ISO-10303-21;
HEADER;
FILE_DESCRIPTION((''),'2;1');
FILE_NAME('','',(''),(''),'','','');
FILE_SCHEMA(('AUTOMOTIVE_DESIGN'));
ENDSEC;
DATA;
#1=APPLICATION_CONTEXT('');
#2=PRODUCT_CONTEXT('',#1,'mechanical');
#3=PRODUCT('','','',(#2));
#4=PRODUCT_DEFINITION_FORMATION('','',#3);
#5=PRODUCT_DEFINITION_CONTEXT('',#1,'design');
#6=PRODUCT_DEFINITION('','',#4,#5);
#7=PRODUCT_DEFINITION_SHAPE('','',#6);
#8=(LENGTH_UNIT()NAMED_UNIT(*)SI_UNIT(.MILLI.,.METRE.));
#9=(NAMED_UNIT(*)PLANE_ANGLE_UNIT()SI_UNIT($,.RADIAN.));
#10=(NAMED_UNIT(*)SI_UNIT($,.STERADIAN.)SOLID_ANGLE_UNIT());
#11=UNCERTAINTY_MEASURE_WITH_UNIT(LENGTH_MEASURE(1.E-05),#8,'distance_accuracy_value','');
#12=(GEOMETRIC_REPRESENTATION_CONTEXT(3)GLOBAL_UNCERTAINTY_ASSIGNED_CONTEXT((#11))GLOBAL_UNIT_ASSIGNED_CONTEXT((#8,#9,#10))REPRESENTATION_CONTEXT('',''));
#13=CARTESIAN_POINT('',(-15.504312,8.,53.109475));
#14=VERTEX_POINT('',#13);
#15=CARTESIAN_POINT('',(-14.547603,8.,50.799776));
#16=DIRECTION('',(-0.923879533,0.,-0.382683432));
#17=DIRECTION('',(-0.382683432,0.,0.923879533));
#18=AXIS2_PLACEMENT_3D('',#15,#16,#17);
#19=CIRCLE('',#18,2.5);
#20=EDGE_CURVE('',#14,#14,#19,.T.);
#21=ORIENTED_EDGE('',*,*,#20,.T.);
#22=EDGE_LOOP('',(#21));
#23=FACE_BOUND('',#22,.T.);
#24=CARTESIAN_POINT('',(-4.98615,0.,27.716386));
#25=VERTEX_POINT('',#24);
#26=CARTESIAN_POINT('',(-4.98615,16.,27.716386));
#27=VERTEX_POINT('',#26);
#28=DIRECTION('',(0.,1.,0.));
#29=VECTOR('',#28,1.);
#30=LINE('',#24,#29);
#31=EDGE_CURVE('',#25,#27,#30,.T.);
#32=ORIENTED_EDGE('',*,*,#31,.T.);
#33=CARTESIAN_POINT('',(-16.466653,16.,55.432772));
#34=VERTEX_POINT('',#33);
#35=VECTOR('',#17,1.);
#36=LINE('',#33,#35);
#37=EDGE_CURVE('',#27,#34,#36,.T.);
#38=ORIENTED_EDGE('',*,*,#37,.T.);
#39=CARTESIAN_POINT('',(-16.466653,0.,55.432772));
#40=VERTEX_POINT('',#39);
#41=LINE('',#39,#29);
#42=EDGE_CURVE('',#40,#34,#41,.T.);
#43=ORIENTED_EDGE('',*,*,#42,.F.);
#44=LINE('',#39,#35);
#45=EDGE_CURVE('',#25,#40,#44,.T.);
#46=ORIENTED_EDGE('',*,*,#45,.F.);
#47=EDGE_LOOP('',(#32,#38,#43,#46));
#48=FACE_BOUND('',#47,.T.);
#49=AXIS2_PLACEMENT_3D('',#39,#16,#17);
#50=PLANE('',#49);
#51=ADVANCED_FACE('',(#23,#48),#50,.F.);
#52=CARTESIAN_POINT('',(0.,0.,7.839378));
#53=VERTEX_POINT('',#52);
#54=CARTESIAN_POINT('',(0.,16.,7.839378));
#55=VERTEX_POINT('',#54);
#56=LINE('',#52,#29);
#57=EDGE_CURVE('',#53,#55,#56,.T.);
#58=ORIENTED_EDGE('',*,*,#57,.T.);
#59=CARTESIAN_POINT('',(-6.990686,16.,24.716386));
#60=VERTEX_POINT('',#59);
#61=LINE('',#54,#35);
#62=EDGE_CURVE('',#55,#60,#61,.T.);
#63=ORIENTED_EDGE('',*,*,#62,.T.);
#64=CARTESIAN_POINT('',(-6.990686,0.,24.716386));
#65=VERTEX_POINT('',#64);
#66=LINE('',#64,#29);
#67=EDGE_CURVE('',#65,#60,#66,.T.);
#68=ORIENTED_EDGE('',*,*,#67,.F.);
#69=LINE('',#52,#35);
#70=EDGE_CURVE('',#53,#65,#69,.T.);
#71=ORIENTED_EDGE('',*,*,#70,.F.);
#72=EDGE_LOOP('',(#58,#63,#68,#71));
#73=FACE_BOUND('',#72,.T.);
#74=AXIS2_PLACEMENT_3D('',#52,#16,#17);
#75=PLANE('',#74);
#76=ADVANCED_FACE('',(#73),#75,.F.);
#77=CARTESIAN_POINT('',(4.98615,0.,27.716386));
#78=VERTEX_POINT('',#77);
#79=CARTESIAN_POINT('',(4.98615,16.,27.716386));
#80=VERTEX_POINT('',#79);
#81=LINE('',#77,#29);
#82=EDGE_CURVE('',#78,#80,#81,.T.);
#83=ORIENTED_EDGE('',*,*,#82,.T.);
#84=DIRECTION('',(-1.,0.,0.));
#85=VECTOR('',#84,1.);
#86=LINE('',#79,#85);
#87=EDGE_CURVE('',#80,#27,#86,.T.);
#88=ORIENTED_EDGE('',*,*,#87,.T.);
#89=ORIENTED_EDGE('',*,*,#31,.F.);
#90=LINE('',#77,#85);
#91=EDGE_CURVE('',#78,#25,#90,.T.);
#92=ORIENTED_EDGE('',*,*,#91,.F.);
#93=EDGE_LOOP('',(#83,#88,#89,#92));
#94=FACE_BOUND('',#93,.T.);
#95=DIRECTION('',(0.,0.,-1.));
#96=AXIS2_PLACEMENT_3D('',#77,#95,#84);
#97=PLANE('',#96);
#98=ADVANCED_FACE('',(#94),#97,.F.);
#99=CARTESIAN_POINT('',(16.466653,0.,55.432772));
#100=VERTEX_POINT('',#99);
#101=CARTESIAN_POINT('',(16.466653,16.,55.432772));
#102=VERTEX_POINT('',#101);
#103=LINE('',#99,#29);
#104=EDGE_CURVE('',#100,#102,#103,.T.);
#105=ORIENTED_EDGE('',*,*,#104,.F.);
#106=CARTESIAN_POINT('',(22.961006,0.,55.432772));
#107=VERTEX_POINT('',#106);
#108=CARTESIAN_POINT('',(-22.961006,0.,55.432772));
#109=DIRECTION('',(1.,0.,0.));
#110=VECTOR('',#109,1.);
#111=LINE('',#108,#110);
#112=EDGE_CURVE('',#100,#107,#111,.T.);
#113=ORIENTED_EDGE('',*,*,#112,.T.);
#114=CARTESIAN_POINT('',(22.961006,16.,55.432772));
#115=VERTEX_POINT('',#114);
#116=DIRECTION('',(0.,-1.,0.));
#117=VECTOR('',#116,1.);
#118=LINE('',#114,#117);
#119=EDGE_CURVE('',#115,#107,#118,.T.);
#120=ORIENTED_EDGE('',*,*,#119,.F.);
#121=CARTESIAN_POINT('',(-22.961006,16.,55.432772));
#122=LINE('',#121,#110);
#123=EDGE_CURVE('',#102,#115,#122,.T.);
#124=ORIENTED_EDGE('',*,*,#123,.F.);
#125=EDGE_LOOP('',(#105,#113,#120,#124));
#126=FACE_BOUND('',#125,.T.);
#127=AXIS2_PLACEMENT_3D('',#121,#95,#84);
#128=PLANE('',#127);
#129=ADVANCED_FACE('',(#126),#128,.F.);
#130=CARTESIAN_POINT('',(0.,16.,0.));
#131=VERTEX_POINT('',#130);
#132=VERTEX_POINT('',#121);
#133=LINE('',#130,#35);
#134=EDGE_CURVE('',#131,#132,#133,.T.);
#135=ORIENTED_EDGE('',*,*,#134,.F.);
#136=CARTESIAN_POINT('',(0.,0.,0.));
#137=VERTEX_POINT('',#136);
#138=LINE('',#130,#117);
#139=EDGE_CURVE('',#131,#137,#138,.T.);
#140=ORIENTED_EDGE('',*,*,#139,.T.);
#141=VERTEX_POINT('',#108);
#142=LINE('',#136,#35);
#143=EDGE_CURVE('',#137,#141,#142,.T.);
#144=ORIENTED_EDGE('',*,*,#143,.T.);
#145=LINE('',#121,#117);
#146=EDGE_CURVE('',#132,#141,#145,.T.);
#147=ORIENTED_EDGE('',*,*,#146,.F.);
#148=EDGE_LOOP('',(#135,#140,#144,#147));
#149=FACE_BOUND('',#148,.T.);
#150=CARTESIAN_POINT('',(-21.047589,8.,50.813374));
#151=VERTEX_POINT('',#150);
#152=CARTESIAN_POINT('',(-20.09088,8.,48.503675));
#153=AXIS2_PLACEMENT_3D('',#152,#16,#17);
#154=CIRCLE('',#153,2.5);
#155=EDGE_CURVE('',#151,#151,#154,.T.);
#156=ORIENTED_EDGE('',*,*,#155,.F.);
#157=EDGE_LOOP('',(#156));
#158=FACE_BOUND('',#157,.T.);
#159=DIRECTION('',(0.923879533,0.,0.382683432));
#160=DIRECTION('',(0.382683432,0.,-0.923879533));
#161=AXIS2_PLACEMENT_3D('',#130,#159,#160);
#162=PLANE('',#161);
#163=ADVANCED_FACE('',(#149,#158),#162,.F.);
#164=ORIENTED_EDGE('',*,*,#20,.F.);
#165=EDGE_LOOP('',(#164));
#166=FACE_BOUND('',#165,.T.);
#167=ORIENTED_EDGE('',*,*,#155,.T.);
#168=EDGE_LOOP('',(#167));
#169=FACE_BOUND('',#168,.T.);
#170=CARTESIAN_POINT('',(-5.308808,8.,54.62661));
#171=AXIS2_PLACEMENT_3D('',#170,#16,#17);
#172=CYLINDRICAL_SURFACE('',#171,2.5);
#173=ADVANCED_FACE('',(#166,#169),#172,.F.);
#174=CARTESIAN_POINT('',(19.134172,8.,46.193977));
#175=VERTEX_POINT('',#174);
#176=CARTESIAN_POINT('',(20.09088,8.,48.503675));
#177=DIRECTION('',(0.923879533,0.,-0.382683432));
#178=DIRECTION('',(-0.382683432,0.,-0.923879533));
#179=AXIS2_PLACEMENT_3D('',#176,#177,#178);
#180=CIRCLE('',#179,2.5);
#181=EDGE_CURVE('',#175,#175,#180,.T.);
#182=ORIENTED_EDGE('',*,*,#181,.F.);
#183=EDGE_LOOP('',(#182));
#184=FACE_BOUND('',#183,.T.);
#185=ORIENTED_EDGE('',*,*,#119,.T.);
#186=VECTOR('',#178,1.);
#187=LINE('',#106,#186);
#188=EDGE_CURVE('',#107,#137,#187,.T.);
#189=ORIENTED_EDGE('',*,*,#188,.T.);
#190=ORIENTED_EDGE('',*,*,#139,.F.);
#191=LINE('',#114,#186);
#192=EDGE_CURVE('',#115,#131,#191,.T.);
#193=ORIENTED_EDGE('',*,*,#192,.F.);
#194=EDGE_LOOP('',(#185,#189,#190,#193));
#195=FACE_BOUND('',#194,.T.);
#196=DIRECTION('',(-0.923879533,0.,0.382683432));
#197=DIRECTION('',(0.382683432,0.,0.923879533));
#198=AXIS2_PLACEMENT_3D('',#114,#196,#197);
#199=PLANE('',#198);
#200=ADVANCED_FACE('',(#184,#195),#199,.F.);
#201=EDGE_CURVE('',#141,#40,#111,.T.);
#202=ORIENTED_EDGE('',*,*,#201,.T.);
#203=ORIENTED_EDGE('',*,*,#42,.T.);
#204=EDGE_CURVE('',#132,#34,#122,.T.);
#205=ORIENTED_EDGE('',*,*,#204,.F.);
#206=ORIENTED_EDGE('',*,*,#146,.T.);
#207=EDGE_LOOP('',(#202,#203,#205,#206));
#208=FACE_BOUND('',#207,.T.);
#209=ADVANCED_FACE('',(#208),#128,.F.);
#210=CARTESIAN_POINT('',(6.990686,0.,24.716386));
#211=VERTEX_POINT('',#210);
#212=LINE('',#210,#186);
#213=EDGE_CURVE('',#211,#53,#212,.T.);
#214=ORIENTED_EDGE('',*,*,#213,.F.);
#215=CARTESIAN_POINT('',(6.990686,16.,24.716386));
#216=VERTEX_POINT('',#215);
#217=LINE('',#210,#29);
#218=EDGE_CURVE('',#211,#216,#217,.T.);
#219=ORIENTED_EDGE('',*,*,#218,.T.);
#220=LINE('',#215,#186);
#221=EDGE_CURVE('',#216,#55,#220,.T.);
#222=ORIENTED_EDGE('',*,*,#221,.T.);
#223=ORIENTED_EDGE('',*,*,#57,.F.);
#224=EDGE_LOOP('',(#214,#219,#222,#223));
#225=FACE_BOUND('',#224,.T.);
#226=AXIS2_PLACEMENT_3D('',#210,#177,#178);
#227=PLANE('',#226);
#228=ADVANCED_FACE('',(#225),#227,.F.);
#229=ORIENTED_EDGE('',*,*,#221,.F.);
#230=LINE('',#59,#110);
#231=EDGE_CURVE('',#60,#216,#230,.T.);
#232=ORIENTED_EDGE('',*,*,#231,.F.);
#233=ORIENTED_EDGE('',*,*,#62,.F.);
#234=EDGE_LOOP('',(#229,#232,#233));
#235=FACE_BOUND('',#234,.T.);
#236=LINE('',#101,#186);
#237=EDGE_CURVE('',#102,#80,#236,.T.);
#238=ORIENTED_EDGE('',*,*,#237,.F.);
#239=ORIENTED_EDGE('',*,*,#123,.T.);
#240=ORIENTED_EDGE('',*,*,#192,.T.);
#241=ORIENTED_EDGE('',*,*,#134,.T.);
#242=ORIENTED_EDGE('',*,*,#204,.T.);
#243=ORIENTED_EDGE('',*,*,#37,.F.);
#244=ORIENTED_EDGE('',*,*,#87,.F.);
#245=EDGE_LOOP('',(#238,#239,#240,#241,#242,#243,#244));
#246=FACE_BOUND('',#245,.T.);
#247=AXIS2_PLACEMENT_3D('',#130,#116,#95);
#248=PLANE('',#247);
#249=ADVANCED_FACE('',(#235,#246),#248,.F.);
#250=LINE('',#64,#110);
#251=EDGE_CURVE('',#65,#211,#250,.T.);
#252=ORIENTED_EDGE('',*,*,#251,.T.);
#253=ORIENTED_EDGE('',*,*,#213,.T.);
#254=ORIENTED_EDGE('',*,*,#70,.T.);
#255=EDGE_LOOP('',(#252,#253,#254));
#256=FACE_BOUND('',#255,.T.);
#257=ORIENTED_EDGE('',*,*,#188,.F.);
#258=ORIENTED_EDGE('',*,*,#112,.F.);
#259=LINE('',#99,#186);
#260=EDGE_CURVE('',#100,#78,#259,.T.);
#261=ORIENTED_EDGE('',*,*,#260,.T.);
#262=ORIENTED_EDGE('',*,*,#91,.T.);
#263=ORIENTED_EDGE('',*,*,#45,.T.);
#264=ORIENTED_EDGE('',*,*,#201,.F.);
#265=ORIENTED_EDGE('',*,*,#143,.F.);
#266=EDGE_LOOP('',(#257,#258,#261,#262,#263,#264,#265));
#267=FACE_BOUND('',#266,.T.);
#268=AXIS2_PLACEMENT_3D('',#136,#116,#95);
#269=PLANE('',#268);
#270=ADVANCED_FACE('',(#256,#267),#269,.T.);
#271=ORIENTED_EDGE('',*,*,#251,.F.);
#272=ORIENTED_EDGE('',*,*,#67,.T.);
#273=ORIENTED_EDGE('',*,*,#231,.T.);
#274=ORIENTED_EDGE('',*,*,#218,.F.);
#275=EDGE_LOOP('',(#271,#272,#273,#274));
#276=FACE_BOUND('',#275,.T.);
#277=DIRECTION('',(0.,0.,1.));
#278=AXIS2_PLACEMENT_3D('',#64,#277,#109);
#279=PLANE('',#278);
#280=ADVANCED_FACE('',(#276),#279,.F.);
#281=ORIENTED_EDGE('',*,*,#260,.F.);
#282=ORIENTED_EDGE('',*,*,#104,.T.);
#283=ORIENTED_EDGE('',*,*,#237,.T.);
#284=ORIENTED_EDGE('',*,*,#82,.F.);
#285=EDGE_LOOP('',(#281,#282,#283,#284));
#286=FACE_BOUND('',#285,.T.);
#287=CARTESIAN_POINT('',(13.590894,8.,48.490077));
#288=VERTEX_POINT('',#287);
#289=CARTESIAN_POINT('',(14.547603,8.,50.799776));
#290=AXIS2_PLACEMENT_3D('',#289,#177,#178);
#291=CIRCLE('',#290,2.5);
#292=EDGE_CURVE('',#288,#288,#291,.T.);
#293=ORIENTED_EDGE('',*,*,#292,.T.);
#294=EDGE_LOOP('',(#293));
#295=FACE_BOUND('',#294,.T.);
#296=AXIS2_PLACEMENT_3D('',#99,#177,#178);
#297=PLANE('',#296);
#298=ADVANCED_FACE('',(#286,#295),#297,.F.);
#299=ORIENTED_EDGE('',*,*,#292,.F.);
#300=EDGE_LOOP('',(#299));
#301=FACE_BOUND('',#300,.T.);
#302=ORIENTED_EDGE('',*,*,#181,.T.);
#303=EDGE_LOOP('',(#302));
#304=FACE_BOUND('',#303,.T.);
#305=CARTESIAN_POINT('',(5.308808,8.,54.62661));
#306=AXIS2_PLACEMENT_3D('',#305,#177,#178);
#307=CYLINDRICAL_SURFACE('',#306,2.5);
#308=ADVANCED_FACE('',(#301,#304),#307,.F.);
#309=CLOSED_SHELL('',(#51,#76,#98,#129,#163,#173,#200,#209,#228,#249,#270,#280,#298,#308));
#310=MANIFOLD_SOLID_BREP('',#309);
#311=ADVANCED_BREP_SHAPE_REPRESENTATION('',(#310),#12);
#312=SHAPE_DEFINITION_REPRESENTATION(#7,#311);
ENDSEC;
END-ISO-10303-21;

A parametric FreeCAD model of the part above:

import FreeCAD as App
import Part
import Sketcher
from FreeCAD import Vector
Q = App.Units.Quantity


def add_polygon(sketch, points):
    """Adds a closed chain of lines whose ends are joined by coincident constraints."""
    first, n = sketch.GeometryCount, len(points)
    for a, b in zip(points, points[1:] + points[:1]):
        sketch.addGeometry(Part.LineSegment(App.Vector(*a, 0), App.Vector(*b, 0)), False)
    for i in range(n):
        sketch.addConstraint(Sketcher.Constraint("Coincident", first + i, 2, first + (i + 1) % n, 1))

doc = App.newDocument("Part")
params = doc.addObject("Spreadsheet::Sheet", "Params")
for row, (alias, value) in enumerate([
    ("sketch1_length", "60 mm"),
    ("pad1_length", "16 mm"),
    ("sketch2_length", "30 mm"),
    ("pocket1_length", "16 mm"),
    ("sketch3_diameter", "5 mm"),
    ("pocket2_length", "16 mm"),
    ("sketch4_diameter", "5 mm"),
    ("pocket3_length", "16 mm"),
], start=1):
    params.set(f"A{row}", alias)
    params.set(f"B{row}", "=" + value)
    params.setAlias(f"B{row}", alias)

body = doc.addObject("PartDesign::Body", "Body")

sketch1 = body.newObject("Sketcher::SketchObject", "Sketch")
sketch1.AttachmentSupport = (doc.getObject("XZ_Plane"), [""])
sketch1.MapMode = "FlatFace"
add_polygon(sketch1, [(0, 0), (-22.961006, 55.432772), (22.961006, 55.432772)])
sketch1.addConstraint([
    Sketcher.Constraint("Horizontal", 1),
    Sketcher.Constraint("Coincident", 2, 2, -1, 1),
    Sketcher.Constraint("Equal", 0, 2),
    Sketcher.Constraint("Distance", 0, 60.0),
    Sketcher.Constraint("Angle", 0, Q("112.5 deg")),
])
sketch1.setExpression("Constraints[6]", "Params.sketch1_length")
pad1 = body.newObject("PartDesign::Pad", "Pad")
pad1.Profile = sketch1
pad1.setExpression("Length", "Params.pad1_length")
pad1.Reversed = True

sketch2 = body.newObject("Sketcher::SketchObject", "Sketch001")
sketch2.AttachmentSupport = (doc.getObject("XZ_Plane"), [""])
sketch2.MapMode = "FlatFace"
sketch2.AttachmentOffset = App.Placement(Vector(0, 0, -16), App.Rotation())
add_polygon(sketch2, [(-4.98615, 27.716386), (-16.466653, 55.432772), (16.466653, 55.432772), (4.98615, 27.716386)])
add_polygon(sketch2, [(-6.990686, 24.716386), (6.990686, 24.716386), (0, 7.839378)])
sketch2.addConstraint([
    Sketcher.Constraint("Horizontal", 1),
    Sketcher.Constraint("Horizontal", 3),
    Sketcher.Constraint("Horizontal", 4),
    Sketcher.Constraint("PointOnObject", 5, 2, -2),
    Sketcher.Constraint("Parallel", 2, 5),
    Sketcher.Constraint("Parallel", 0, 6),
    Sketcher.Constraint("Equal", 0, 2),
    Sketcher.Constraint("Distance", 0, 30.0),
    Sketcher.Constraint("Angle", 0, Q("112.5 deg")),
    Sketcher.Constraint("DistanceY", 4, 2, 2, 2, 3.0),
    Sketcher.Constraint("DistanceX", 3, 2, 3, 1, 9.9723),
    Sketcher.Constraint("DistanceX", 4, 1, 4, 2, 13.981371),
    Sketcher.Constraint("DistanceY", -1, 1, 0, 2, 55.432772),
    Sketcher.Constraint("DistanceX", -1, 1, 2, 2, 4.98615),
])
sketch2.setExpression("Constraints[14]", "Params.sketch2_length")
pocket1 = body.newObject("PartDesign::Pocket", "Pocket")
pocket1.Profile = sketch2
pocket1.setExpression("Length", "Params.pocket1_length")
pocket1.Reversed = True

sketch3 = body.newObject("Sketcher::SketchObject", "Sketch002")
sketch3.Placement = App.Placement(Vector(0, 0, 0), App.Rotation(Vector(-0.382683432, 0, -0.923879533), Vector(0, 1.000000001, 0), Vector(0.923879533, 0, -0.382683432), "ZXY"))
sketch3.addGeometry(Part.Circle(Vector(-52.5, 8, 0), Vector(0, 0, 1), 2.5), False)
sketch3.addConstraint([
    Sketcher.Constraint("Diameter", 0, 5.0),
    Sketcher.Constraint("DistanceY", -1, 1, 0, 3, 8.0),
    Sketcher.Constraint("DistanceX", 0, 3, -1, 1, 52.5),
])
sketch3.setExpression("Constraints[0]", "Params.sketch3_diameter")
pocket2 = body.newObject("PartDesign::Pocket", "Pocket001")
pocket2.Profile = sketch3
pocket2.setExpression("Length", "Params.pocket2_length")

sketch4 = body.newObject("Sketcher::SketchObject", "Sketch003")
sketch4.Placement = App.Placement(Vector(0, 0, 0), App.Rotation(Vector(-0.382683432, 0, 0.923879533), Vector(0, 1.000000001, 0), Vector(-0.923879533, 0, -0.382683432), "ZXY"))
sketch4.addGeometry(Part.Circle(Vector(52.5, 8, 0), Vector(0, 0, 1), 2.5), False)
sketch4.addConstraint([
    Sketcher.Constraint("Diameter", 0, 5.0),
    Sketcher.Constraint("DistanceY", -1, 1, 0, 3, 8.0),
    Sketcher.Constraint("DistanceX", -1, 1, 0, 3, 52.5),
])
sketch4.setExpression("Constraints[0]", "Params.sketch4_diameter")
pocket3 = body.newObject("PartDesign::Pocket", "Pocket002")
pocket3.Profile = sketch4
pocket3.setExpression("Length", "Params.pocket3_length")

doc.recompute()
